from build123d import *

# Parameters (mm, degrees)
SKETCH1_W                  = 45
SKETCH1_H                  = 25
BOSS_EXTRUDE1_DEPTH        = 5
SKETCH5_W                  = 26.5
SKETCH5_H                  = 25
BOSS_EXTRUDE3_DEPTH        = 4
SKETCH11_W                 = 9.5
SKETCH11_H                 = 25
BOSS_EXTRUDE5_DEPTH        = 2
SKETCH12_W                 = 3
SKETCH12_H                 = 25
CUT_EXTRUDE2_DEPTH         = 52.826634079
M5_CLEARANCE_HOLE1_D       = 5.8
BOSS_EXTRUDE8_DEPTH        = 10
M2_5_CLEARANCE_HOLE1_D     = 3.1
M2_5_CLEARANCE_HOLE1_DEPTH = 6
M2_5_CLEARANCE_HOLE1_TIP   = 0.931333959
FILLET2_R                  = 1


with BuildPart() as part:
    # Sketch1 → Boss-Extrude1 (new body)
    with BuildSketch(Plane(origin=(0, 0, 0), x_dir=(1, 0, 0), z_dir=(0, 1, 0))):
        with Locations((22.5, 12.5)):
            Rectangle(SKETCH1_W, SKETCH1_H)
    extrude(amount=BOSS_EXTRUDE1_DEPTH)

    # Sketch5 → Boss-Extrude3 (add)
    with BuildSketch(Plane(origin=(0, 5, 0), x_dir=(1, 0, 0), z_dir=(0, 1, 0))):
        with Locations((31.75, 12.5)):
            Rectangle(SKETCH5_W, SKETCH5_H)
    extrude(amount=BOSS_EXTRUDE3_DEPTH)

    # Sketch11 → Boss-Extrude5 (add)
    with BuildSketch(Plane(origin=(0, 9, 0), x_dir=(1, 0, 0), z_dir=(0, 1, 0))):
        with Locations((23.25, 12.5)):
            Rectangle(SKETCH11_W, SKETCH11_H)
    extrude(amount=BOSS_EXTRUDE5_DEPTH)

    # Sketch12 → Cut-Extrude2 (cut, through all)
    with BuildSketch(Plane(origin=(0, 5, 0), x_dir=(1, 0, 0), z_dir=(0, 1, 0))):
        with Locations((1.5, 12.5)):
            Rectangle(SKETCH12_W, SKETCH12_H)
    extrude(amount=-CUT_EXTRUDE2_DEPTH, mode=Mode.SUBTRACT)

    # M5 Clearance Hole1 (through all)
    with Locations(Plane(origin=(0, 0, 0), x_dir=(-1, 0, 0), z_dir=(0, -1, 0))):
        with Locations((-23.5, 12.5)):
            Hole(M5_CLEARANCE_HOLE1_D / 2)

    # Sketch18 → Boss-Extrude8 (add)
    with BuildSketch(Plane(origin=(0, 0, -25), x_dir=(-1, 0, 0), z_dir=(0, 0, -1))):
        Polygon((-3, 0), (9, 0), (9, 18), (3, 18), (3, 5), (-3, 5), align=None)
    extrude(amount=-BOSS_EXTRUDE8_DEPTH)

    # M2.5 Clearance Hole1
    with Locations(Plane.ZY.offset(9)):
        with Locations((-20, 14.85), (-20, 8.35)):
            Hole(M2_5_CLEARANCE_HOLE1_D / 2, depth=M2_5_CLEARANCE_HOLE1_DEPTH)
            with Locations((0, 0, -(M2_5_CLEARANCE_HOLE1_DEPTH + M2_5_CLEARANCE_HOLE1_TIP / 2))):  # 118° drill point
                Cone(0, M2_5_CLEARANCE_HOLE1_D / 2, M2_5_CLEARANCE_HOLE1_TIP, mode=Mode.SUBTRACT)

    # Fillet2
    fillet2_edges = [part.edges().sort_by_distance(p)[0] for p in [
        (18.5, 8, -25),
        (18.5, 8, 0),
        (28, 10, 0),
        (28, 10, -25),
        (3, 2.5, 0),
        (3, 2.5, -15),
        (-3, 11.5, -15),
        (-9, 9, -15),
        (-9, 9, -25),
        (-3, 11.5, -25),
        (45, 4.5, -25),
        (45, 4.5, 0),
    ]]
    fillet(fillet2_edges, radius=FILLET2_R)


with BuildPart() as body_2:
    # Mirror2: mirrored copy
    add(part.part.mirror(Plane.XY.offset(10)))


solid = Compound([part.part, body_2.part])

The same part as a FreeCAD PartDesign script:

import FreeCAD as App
import Part
import Sketcher
Q = App.Units.Quantity


def edges_at(feature, points):
    """Names of the edges that pass closest to the given points."""
    edges = feature.Shape.Edges
    near = lambda p: min(range(len(edges)), key=lambda i: edges[i].distToShape(Part.Vertex(*p))[0])
    return sorted({f"Edge{near(p) + 1}" for p in points})


def add_polygon(sketch, points):
    """Adds a closed chain of lines whose ends are joined by coincident constraints."""
    first, n = sketch.GeometryCount, len(points)
    for a, b in zip(points, points[1:] + points[:1]):
        sketch.addGeometry(Part.LineSegment(App.Vector(*a, 0), App.Vector(*b, 0)), False)
    for i in range(n):
        sketch.addConstraint(Sketcher.Constraint("Coincident", first + i, 2, first + (i + 1) % n, 1))

doc = App.newDocument("Part")
body = doc.addObject("PartDesign::Body", "Body")

# Sketch on XZ plane
sketch1 = body.newObject("Sketcher::SketchObject", "Sketch")
sketch1.AttachmentSupport = (doc.getObject("XZ_Plane"), [""])
sketch1.MapMode = "FlatFace"
add_polygon(sketch1, [(0, -25), (0, 0), (45, 0), (45, -25)])  # lines 0-3
sketch1.addConstraint(Sketcher.Constraint("Vertical", 0))
sketch1.addConstraint(Sketcher.Constraint("Horizontal", 1))
sketch1.addConstraint(Sketcher.Constraint("Vertical", 2))
sketch1.addConstraint(Sketcher.Constraint("Horizontal", 3))
sketch1.addConstraint(Sketcher.Constraint("Coincident", 0, 2, -1, 1))
sketch1.addConstraint(Sketcher.Constraint("DistanceX", 1, 1, 1, 2, Q("45 mm")))
sketch1.addConstraint(Sketcher.Constraint("DistanceY", 0, 1, 0, 2, Q("25 mm")))
pad1 = body.newObject("PartDesign::Pad", "Pad")
pad1.Profile = sketch1
pad1.Length = 5
pad1.Reversed = True

# Sketch on XZ plane
sketch2 = body.newObject("Sketcher::SketchObject", "Sketch001")
sketch2.AttachmentSupport = (doc.getObject("XZ_Plane"), [""])
sketch2.MapMode = "FlatFace"
sketch2.AttachmentOffset = App.Placement(App.Vector(0, 0, -5), App.Rotation())
add_polygon(sketch2, [(18, -25), (18, 0), (45, 0), (45, -25)])  # lines 0-3
sketch2.addConstraint(Sketcher.Constraint("Vertical", 0))
sketch2.addConstraint(Sketcher.Constraint("Horizontal", 1))
sketch2.addConstraint(Sketcher.Constraint("Vertical", 2))
sketch2.addConstraint(Sketcher.Constraint("Horizontal", 3))
sketch2.addConstraint(Sketcher.Constraint("PointOnObject", 0, 2, -1))
sketch2.addConstraint(Sketcher.Constraint("DistanceY", 0, 1, 0, 2, Q("25 mm")))
sketch2.addConstraint(Sketcher.Constraint("DistanceX", 1, 1, 1, 2, Q("26.5 mm")))
sketch2.addConstraint(Sketcher.Constraint("DistanceX", -1, 1, 1, 2, Q("45 mm")))
pad2 = body.newObject("PartDesign::Pad", "Pad001")
pad2.Profile = sketch2
pad2.Length = 4
pad2.Reversed = True

# Sketch on XZ plane
sketch3 = body.newObject("Sketcher::SketchObject", "Sketch002")
sketch3.AttachmentSupport = (doc.getObject("XZ_Plane"), [""])
sketch3.MapMode = "FlatFace"
sketch3.AttachmentOffset = App.Placement(App.Vector(0, 0, -9), App.Rotation())
add_polygon(sketch3, [(18, -25), (18, 0), (28, 0), (28, -25)])  # lines 0-3
sketch3.addConstraint(Sketcher.Constraint("Vertical", 0))
sketch3.addConstraint(Sketcher.Constraint("Horizontal", 1))
sketch3.addConstraint(Sketcher.Constraint("Vertical", 2))
sketch3.addConstraint(Sketcher.Constraint("Horizontal", 3))
sketch3.addConstraint(Sketcher.Constraint("PointOnObject", 0, 2, -1))
sketch3.addConstraint(Sketcher.Constraint("DistanceY", 0, 1, 0, 2, Q("25 mm")))
sketch3.addConstraint(Sketcher.Constraint("DistanceX", 1, 1, 1, 2, Q("9.5 mm")))
sketch3.addConstraint(Sketcher.Constraint("DistanceX", -1, 1, 1, 2, Q("28 mm")))
pad3 = body.newObject("PartDesign::Pad", "Pad002")
pad3.Profile = sketch3
pad3.Length = 2
pad3.Reversed = True

# Sketch on XZ plane
sketch4 = body.newObject("Sketcher::SketchObject", "Sketch003")
sketch4.AttachmentSupport = (doc.getObject("XZ_Plane"), [""])
sketch4.MapMode = "FlatFace"
sketch4.AttachmentOffset = App.Placement(App.Vector(0, 0, -5), App.Rotation())
add_polygon(sketch4, [(0, -25), (0, 0), (3, 0), (3, -25)])  # lines 0-3
sketch4.addConstraint(Sketcher.Constraint("Vertical", 0))
sketch4.addConstraint(Sketcher.Constraint("Horizontal", 1))
sketch4.addConstraint(Sketcher.Constraint("Vertical", 2))
sketch4.addConstraint(Sketcher.Constraint("Horizontal", 3))
sketch4.addConstraint(Sketcher.Constraint("Coincident", 0, 2, -1, 1))
sketch4.addConstraint(Sketcher.Constraint("DistanceX", 1, 1, 1, 2, Q("3 mm")))
sketch4.addConstraint(Sketcher.Constraint("DistanceY", 0, 1, 0, 2, Q("25 mm")))
pocket1 = body.newObject("PartDesign::Pocket", "Pocket")
pocket1.Profile = sketch4
pocket1.Type = "ThroughAll"
pocket1.Reversed = True

# Sketch on XZ plane
sketch5 = body.newObject("Sketcher::SketchObject", "Sketch004")
sketch5.AttachmentSupport = (doc.getObject("XZ_Plane"), [""])
sketch5.MapMode = "FlatFace"
sketch5.addGeometry(Part.Circle(App.Vector(23.5, -12.5, 0), App.Vector(0, 0, 1), 2.9), False)
sketch5.addConstraint(Sketcher.Constraint("Diameter", 0, Q("5.8 mm")))
sketch5.addConstraint(Sketcher.Constraint("DistanceX", -1, 1, 0, 3, Q("23.5 mm")))
sketch5.addConstraint(Sketcher.Constraint("DistanceY", 0, 3, -1, 1, Q("12.5 mm")))
doc.recompute()
hole = body.newObject("PartDesign::Hole", "Hole")
hole.Profile = sketch5
hole.ThreadType = "None"
hole.Diameter = 5.8
hole.DepthType = "ThroughAll"

# Sketch on XY plane
sketch6 = body.newObject("Sketcher::SketchObject", "Sketch005")
sketch6.AttachmentSupport = (doc.getObject("XY_Plane"), [""])
sketch6.MapMode = "FlatFace"
sketch6.AttachmentOffset = App.Placement(App.Vector(0, 0, -25), App.Rotation())
add_polygon(sketch6, [(3, 0), (-9, 0), (-9, 18), (-3, 18), (-3, 5), (3, 5)])  # lines 0-5
sketch6.addConstraint(Sketcher.Constraint("Horizontal", 0))
sketch6.addConstraint(Sketcher.Constraint("Vertical", 1))
sketch6.addConstraint(Sketcher.Constraint("Horizontal", 2))
sketch6.addConstraint(Sketcher.Constraint("Vertical", 3))
sketch6.addConstraint(Sketcher.Constraint("Horizontal", 4))
sketch6.addConstraint(Sketcher.Constraint("Vertical", 5))
sketch6.addConstraint(Sketcher.Constraint("PointOnObject", 0, 2, -1))
sketch6.addConstraint(Sketcher.Constraint("Equal", 2, 4))
sketch6.addConstraint(Sketcher.Constraint("DistanceX", 0, 2, 0, 1, Q("12 mm")))
sketch6.addConstraint(Sketcher.Constraint("DistanceY", 1, 1, 1, 2, Q("18 mm")))
sketch6.addConstraint(Sketcher.Constraint("DistanceY", 3, 2, 3, 1, Q("13 mm")))
sketch6.addConstraint(Sketcher.Constraint("DistanceX", 0, 2, -1, 1, Q("9 mm")))
pad4 = body.newObject("PartDesign::Pad", "Pad003")
pad4.Profile = sketch6
pad4.Length = 10

# Sketch on YZ plane
sketch7 = body.newObject("Sketcher::SketchObject", "Sketch006")
sketch7.AttachmentSupport = (doc.getObject("YZ_Plane"), [""])
sketch7.MapMode = "FlatFace"
sketch7.AttachmentOffset = App.Placement(App.Vector(0, 0, -9), App.Rotation())
sketch7.addGeometry(Part.Circle(App.Vector(14.8, -20, 0), App.Vector(0, 0, 1), 1.6), False)
sketch7.addGeometry(Part.Circle(App.Vector(8.3, -20, 0), App.Vector(0, 0, 1), 1.6), False)
sketch7.addConstraint(Sketcher.Constraint("Equal", 0, 1))
sketch7.addConstraint(Sketcher.Constraint("Horizontal", 0, 3, 1, 3))
sketch7.addConstraint(Sketcher.Constraint("Diameter", 0, Q("3.1 mm")))
sketch7.addConstraint(Sketcher.Constraint("DistanceY", 0, 3, -1, 1, Q("20 mm")))
sketch7.addConstraint(Sketcher.Constraint("DistanceX", 1, 3, 0, 3, Q("6.5 mm")))
sketch7.addConstraint(Sketcher.Constraint("DistanceX", -1, 1, 0, 3, Q("14.85 mm")))
doc.recompute()
hole2 = body.newObject("PartDesign::Hole", "Hole001")
hole2.Profile = sketch7
hole2.ThreadType = "None"
hole2.Diameter = 3.1
hole2.DepthType = "Dimension"
hole2.Depth = 6
hole2.DrillPoint = "Angled"
hole2.DrillPointAngle = 118
hole2.Reversed = True
doc.recompute()

fillet = body.newObject("PartDesign::Fillet", "Fillet")
fillet.Base = (hole2, edges_at(hole2, [
    (18.5, 8, -25),
    (18.5, 8, 0),
    (28, 10, 0),
    (28, 10, -25),
    (3, 2.5, 0),
    (3, 2.5, -15),
    (-3, 11.5, -15),
    (-9, 9, -15),
    (-9, 9, -25),
    (-3, 11.5, -25),
    (45, 4.5, -25),
    (45, 4.5, 0),
]))
fillet.Radius = 1
body2 = doc.addObject("PartDesign::Body", "Body001")
doc.recompute()

mirroring = doc.addObject("Part::Mirroring", "Mirroring")
mirroring.Source = body
mirroring.Base = App.Vector(0, 0, 10)
mirroring.Normal = App.Vector(0, 0, 1)
body2.BaseFeature = mirroring
doc.recompute()
mirroring.Visibility = False

doc.recompute()
